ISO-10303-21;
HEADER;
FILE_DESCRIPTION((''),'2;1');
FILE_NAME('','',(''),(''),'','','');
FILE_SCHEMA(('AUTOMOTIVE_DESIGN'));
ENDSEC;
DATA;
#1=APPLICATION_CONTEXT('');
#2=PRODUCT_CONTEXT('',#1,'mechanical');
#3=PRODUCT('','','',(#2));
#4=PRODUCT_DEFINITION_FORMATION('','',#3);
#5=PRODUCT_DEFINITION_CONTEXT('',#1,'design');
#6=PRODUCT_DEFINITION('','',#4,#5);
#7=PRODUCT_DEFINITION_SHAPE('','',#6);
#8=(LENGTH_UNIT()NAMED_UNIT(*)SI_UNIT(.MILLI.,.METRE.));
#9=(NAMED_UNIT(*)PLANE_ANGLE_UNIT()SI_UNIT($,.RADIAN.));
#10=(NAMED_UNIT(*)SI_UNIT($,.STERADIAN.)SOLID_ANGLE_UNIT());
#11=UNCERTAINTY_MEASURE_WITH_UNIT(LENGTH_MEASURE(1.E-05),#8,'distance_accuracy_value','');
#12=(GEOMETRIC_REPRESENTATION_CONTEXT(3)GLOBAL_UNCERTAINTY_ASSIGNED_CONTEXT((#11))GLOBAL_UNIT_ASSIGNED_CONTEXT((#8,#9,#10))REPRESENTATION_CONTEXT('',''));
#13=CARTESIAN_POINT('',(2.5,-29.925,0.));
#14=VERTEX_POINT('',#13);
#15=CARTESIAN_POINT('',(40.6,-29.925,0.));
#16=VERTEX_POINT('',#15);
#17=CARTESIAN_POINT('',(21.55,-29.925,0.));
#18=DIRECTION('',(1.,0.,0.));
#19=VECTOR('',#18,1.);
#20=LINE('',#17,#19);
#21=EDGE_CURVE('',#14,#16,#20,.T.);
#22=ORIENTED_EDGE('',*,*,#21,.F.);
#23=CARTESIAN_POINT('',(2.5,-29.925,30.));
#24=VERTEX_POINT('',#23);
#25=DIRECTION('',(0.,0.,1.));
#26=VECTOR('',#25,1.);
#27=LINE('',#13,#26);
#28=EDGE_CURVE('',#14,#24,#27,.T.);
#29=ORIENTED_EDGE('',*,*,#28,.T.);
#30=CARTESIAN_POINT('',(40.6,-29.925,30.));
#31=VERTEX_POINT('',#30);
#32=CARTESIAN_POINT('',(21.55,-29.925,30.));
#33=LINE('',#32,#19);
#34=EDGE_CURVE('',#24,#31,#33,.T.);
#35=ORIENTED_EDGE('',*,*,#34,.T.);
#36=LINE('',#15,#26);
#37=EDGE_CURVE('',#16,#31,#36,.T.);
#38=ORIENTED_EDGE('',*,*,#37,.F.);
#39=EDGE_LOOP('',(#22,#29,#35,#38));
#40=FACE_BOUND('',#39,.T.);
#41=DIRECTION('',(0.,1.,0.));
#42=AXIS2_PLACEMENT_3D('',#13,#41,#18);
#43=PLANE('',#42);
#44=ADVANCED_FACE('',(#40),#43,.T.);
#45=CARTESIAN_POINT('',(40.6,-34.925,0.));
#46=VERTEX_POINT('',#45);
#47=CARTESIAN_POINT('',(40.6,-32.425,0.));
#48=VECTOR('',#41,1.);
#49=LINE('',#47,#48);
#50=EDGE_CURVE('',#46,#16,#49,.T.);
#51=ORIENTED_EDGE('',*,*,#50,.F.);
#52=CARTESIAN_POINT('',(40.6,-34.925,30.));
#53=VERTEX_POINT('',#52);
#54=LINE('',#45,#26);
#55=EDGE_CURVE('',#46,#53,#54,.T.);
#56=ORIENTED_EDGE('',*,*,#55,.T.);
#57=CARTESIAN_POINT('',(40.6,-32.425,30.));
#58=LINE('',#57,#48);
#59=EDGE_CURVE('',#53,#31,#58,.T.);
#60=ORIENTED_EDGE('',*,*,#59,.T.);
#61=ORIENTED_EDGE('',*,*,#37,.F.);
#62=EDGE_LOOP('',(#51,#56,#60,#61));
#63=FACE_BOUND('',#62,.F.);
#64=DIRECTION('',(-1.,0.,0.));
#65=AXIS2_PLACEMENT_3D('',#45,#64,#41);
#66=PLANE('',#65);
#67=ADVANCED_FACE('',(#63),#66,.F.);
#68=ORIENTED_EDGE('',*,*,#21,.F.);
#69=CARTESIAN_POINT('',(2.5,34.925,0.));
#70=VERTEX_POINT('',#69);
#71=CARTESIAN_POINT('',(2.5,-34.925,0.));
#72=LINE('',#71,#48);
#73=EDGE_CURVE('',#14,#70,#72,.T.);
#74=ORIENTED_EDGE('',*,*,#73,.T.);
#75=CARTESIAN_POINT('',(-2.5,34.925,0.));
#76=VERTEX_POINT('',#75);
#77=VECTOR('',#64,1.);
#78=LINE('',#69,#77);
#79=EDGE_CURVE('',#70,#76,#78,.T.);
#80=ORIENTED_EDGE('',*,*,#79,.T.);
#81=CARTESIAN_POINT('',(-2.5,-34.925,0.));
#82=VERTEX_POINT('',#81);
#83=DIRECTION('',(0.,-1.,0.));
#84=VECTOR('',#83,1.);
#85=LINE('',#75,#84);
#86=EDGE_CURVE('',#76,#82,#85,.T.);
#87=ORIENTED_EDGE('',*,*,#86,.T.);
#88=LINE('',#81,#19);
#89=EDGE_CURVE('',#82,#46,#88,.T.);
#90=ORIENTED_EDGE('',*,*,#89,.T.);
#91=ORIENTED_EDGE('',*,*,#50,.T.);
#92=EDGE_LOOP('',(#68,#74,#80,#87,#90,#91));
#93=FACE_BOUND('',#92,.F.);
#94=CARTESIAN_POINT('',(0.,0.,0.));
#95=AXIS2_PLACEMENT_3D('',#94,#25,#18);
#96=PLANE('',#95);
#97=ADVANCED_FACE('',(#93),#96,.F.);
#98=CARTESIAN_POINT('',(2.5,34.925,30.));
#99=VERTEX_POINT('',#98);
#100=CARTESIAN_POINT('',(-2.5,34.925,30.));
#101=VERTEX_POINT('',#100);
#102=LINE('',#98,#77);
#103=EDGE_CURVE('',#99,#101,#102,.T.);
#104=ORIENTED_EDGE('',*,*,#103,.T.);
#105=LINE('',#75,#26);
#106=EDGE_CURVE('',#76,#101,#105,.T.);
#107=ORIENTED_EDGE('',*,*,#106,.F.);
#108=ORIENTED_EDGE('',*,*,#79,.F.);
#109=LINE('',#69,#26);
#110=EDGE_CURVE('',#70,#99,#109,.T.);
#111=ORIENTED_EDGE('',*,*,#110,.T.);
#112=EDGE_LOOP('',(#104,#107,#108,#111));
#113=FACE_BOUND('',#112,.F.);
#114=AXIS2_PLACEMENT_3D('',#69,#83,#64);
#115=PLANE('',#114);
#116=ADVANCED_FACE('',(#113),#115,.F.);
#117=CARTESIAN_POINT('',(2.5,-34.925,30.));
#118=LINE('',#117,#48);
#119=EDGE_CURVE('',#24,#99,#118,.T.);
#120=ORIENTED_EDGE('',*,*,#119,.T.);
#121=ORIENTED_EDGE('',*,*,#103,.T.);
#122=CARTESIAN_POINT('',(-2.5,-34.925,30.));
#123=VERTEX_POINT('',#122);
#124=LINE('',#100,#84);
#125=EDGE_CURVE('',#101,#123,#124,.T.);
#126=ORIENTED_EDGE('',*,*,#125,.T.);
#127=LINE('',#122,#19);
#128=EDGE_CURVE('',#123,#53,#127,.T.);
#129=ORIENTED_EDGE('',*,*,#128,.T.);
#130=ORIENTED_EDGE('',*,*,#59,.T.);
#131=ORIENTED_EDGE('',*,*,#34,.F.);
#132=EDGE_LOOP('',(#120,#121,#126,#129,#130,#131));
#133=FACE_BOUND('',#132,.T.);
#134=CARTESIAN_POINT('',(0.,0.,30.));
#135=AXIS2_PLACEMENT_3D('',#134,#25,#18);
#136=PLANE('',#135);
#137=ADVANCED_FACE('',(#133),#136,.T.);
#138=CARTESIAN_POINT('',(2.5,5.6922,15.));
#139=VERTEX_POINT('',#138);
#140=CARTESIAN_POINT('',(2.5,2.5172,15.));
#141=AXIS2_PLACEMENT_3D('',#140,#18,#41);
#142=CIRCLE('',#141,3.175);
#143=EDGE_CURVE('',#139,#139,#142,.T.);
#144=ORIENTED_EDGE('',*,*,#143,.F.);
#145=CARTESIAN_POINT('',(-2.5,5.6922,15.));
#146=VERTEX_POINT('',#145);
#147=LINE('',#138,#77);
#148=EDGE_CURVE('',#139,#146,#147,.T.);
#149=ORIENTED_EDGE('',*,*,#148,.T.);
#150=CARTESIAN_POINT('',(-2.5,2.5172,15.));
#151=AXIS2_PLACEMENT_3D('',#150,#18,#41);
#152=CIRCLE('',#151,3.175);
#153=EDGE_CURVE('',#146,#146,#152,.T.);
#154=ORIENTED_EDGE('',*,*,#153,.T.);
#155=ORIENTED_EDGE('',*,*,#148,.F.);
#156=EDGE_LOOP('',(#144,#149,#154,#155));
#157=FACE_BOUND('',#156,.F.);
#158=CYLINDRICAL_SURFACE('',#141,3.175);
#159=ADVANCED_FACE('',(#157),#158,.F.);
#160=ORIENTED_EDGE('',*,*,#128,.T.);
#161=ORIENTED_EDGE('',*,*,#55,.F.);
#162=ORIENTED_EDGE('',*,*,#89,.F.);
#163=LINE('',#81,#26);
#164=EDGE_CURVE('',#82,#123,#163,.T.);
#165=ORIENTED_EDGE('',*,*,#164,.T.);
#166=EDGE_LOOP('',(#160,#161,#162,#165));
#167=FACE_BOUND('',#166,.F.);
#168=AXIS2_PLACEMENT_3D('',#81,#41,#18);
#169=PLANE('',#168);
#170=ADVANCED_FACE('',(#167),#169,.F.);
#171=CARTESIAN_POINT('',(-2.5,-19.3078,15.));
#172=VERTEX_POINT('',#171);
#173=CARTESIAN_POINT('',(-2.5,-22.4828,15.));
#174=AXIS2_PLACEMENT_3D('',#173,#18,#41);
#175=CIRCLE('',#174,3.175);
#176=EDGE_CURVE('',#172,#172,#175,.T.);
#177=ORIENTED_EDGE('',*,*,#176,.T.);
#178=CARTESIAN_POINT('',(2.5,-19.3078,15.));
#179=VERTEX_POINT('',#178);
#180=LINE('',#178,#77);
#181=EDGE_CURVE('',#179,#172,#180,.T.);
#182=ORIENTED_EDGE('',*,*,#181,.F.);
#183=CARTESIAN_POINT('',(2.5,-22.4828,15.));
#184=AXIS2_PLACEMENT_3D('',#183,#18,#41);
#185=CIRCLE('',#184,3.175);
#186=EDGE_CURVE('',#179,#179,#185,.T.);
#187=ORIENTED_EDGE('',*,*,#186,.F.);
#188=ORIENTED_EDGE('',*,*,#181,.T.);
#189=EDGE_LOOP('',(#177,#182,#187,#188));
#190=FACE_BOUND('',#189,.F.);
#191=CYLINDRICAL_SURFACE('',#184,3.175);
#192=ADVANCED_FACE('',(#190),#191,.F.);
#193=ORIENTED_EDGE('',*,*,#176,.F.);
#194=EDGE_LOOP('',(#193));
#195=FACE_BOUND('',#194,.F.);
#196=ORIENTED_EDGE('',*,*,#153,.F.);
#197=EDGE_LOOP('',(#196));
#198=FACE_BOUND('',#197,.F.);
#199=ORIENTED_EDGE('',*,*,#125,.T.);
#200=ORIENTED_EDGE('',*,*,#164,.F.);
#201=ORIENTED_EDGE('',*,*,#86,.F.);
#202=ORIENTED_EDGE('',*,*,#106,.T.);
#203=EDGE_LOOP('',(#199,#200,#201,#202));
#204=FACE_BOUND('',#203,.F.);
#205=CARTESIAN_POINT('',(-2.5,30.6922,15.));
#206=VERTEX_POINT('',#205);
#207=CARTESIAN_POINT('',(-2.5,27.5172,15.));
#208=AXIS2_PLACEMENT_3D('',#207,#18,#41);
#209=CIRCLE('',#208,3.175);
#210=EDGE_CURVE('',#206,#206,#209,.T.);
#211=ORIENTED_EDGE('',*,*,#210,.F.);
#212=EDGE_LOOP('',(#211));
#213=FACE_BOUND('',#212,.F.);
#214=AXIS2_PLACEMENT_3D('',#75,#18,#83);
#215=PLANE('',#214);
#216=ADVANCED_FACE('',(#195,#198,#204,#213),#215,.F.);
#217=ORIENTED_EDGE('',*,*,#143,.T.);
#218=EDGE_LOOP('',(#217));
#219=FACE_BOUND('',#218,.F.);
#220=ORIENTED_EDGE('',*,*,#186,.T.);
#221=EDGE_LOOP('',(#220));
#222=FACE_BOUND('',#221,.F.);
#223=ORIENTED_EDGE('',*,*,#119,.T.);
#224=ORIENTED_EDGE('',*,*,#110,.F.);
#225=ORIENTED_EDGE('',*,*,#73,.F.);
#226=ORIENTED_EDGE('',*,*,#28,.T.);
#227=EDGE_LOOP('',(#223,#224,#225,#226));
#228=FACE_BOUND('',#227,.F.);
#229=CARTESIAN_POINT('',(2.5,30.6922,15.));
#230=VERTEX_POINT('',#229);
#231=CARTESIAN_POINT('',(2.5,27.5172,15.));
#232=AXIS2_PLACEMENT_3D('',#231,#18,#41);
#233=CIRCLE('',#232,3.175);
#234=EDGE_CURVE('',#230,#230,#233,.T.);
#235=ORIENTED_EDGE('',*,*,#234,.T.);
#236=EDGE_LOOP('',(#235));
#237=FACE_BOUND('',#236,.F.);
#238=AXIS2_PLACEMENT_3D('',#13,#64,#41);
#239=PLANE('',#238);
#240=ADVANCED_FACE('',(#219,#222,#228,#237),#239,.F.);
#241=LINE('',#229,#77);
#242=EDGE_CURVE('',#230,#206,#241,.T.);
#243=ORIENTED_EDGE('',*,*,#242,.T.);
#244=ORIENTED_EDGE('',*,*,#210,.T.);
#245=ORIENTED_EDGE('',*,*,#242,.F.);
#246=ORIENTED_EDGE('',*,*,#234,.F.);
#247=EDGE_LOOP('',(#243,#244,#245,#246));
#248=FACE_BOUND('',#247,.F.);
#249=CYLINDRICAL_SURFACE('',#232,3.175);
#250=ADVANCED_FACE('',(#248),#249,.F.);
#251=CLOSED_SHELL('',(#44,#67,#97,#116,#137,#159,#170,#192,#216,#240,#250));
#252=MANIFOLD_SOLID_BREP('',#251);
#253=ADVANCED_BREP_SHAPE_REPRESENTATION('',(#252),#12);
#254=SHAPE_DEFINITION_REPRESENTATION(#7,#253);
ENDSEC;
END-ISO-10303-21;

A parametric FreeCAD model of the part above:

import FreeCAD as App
import Part
import Sketcher
Q = App.Units.Quantity

doc = App.newDocument("Part")
body = doc.addObject("PartDesign::Body", "Body")

sketch1 = body.newObject("Sketcher::SketchObject", "Sketch")
sketch1.AttachmentSupport = (doc.getObject("XY_Plane"), [""])
sketch1.MapMode = "FlatFace"
sketch1.addGeometry([
    Part.LineSegment(App.Vector(-2.5, -34.925, 0), App.Vector(40.6, -34.925, 0)),
    Part.LineSegment(App.Vector(40.6, -34.925, 0), App.Vector(40.6, -29.925, 0)),
    Part.LineSegment(App.Vector(40.6, -29.925, 0), App.Vector(2.5, -29.925, 0)),
    Part.LineSegment(App.Vector(2.5, -29.925, 0), App.Vector(2.5, 34.925, 0)),
    Part.LineSegment(App.Vector(2.5, 34.925, 0), App.Vector(-2.5, 34.925, 0)),
    Part.LineSegment(App.Vector(-2.5, 34.925, 0), App.Vector(-2.5, -34.925, 0)),
], False)
sketch1.addConstraint([
    Sketcher.Constraint("Coincident", 0, 2, 1, 1),
    Sketcher.Constraint("Coincident", 1, 2, 2, 1),
    Sketcher.Constraint("Coincident", 2, 2, 3, 1),
    Sketcher.Constraint("Coincident", 3, 2, 4, 1),
    Sketcher.Constraint("Coincident", 4, 2, 5, 1),
    Sketcher.Constraint("Coincident", 5, 2, 0, 1),
    Sketcher.Constraint("Horizontal", 0),
    Sketcher.Constraint("Vertical", 1),
    Sketcher.Constraint("Horizontal", 2),
    Sketcher.Constraint("Vertical", 3),
    Sketcher.Constraint("Horizontal", 4),
    Sketcher.Constraint("Vertical", 5),
    Sketcher.Constraint("Symmetric", 3, 2, 5, 2, -1, 1),
    Sketcher.Constraint("Equal", 4, 1),
    Sketcher.Constraint("DistanceX", 2, 2, 2, 1, Q("1.5 in")),
    Sketcher.Constraint("DistanceY", 5, 2, 5, 1, Q("2.75 in")),
    Sketcher.Constraint("DistanceX", 0, 1, 0, 2, 43.1),
])
pad1 = body.newObject("PartDesign::Pad", "Pad")
pad1.Profile = sketch1
pad1.Length = 30

sketch2 = body.newObject("Sketcher::SketchObject", "Sketch001")
sketch2.AttachmentSupport = (doc.getObject("YZ_Plane"), [""])
sketch2.MapMode = "FlatFace"
sketch2.AttachmentOffset = App.Placement(App.Vector(0, 0, 2.5), App.Rotation())
sketch2.addGeometry([
    Part.Circle(App.Vector(-22.4828, 15, 0), App.Vector(0, 0, 1), 3.175),
    Part.Circle(App.Vector(2.5172, 15, 0), App.Vector(0, 0, 1), 3.175),
    Part.Circle(App.Vector(27.5172, 15, 0), App.Vector(0, 0, 1), 3.175),
], False)
sketch2.addConstraint([
    Sketcher.Constraint("Equal", 0, 1),
    Sketcher.Constraint("Equal", 1, 2),
    Sketcher.Constraint("Horizontal", 0, 3, 1, 3),
    Sketcher.Constraint("Horizontal", 1, 3, 2, 3),
    Sketcher.Constraint("Diameter", 0, Q("0.25 in")),
    Sketcher.Constraint("DistanceX", 0, 3, -1, 1, 22.4828),
    Sketcher.Constraint("DistanceY", -1, 1, 0, 3, 15.0),
    Sketcher.Constraint("DistanceX", -1, 1, 1, 3, 2.5172),
    Sketcher.Constraint("DistanceX", -1, 1, 2, 3, 27.5172),
])
pocket1 = body.newObject("PartDesign::Pocket", "Pocket")
pocket1.Profile = sketch2
pocket1.Length = Q("1 in")

doc.recompute()
